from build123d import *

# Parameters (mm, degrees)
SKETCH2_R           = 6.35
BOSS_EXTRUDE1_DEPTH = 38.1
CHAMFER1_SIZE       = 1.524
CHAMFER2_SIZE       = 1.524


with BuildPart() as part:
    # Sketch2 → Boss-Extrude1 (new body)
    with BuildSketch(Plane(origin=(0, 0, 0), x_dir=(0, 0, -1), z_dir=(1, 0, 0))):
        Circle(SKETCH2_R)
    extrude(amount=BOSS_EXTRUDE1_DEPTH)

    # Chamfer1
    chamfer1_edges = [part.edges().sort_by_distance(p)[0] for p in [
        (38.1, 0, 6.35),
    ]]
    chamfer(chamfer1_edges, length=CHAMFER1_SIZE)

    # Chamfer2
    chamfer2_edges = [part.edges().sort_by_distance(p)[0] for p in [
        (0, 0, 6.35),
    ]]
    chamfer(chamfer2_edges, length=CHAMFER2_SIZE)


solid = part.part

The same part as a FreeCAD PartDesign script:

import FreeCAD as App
import Part
import Sketcher
Q = App.Units.Quantity


def edges_at(feature, points):
    """Names of the edges that pass closest to the given points."""
    edges = feature.Shape.Edges
    near = lambda p: min(range(len(edges)), key=lambda i: edges[i].distToShape(Part.Vertex(*p))[0])
    return sorted({f"Edge{near(p) + 1}" for p in points})

doc = App.newDocument("Part")
body = doc.addObject("PartDesign::Body", "Body")

# Sketch on YZ plane
sketch1 = doc.addObject("Sketcher::SketchObject", "Sketch")
body.addObject(sketch1)
sketch1.AttachmentSupport = (doc.YZ_Plane, [""])
sketch1.MapMode = "FlatFace"
sketch1.addGeometry(Part.Circle(App.Vector(0, 0, 0), App.Vector(0, 0, 1), 6.35), False)
sketch1.addConstraint([
    Sketcher.Constraint("Coincident", 0, 3, -1, 1),
    Sketcher.Constraint("Diameter", 0, Q("0.5 in")),
])
pad1 = doc.addObject("PartDesign::Pad", "Pad")
body.addObject(pad1)
pad1.Profile = sketch1
pad1.Length = Q("1.5 in")
doc.recompute()

chamfer = doc.addObject("PartDesign::Chamfer", "Chamfer")
body.addObject(chamfer)
chamfer.Base = (pad1, edges_at(pad1, [(38.1, 0, 6.35)]))
chamfer.Size = Q("0.06 in")
doc.recompute()

chamfer2 = doc.addObject("PartDesign::Chamfer", "Chamfer001")
body.addObject(chamfer2)
chamfer2.Base = (chamfer, edges_at(chamfer, [(0, 0, 6.35)]))
chamfer2.Size = Q("0.06 in")

doc.recompute()
